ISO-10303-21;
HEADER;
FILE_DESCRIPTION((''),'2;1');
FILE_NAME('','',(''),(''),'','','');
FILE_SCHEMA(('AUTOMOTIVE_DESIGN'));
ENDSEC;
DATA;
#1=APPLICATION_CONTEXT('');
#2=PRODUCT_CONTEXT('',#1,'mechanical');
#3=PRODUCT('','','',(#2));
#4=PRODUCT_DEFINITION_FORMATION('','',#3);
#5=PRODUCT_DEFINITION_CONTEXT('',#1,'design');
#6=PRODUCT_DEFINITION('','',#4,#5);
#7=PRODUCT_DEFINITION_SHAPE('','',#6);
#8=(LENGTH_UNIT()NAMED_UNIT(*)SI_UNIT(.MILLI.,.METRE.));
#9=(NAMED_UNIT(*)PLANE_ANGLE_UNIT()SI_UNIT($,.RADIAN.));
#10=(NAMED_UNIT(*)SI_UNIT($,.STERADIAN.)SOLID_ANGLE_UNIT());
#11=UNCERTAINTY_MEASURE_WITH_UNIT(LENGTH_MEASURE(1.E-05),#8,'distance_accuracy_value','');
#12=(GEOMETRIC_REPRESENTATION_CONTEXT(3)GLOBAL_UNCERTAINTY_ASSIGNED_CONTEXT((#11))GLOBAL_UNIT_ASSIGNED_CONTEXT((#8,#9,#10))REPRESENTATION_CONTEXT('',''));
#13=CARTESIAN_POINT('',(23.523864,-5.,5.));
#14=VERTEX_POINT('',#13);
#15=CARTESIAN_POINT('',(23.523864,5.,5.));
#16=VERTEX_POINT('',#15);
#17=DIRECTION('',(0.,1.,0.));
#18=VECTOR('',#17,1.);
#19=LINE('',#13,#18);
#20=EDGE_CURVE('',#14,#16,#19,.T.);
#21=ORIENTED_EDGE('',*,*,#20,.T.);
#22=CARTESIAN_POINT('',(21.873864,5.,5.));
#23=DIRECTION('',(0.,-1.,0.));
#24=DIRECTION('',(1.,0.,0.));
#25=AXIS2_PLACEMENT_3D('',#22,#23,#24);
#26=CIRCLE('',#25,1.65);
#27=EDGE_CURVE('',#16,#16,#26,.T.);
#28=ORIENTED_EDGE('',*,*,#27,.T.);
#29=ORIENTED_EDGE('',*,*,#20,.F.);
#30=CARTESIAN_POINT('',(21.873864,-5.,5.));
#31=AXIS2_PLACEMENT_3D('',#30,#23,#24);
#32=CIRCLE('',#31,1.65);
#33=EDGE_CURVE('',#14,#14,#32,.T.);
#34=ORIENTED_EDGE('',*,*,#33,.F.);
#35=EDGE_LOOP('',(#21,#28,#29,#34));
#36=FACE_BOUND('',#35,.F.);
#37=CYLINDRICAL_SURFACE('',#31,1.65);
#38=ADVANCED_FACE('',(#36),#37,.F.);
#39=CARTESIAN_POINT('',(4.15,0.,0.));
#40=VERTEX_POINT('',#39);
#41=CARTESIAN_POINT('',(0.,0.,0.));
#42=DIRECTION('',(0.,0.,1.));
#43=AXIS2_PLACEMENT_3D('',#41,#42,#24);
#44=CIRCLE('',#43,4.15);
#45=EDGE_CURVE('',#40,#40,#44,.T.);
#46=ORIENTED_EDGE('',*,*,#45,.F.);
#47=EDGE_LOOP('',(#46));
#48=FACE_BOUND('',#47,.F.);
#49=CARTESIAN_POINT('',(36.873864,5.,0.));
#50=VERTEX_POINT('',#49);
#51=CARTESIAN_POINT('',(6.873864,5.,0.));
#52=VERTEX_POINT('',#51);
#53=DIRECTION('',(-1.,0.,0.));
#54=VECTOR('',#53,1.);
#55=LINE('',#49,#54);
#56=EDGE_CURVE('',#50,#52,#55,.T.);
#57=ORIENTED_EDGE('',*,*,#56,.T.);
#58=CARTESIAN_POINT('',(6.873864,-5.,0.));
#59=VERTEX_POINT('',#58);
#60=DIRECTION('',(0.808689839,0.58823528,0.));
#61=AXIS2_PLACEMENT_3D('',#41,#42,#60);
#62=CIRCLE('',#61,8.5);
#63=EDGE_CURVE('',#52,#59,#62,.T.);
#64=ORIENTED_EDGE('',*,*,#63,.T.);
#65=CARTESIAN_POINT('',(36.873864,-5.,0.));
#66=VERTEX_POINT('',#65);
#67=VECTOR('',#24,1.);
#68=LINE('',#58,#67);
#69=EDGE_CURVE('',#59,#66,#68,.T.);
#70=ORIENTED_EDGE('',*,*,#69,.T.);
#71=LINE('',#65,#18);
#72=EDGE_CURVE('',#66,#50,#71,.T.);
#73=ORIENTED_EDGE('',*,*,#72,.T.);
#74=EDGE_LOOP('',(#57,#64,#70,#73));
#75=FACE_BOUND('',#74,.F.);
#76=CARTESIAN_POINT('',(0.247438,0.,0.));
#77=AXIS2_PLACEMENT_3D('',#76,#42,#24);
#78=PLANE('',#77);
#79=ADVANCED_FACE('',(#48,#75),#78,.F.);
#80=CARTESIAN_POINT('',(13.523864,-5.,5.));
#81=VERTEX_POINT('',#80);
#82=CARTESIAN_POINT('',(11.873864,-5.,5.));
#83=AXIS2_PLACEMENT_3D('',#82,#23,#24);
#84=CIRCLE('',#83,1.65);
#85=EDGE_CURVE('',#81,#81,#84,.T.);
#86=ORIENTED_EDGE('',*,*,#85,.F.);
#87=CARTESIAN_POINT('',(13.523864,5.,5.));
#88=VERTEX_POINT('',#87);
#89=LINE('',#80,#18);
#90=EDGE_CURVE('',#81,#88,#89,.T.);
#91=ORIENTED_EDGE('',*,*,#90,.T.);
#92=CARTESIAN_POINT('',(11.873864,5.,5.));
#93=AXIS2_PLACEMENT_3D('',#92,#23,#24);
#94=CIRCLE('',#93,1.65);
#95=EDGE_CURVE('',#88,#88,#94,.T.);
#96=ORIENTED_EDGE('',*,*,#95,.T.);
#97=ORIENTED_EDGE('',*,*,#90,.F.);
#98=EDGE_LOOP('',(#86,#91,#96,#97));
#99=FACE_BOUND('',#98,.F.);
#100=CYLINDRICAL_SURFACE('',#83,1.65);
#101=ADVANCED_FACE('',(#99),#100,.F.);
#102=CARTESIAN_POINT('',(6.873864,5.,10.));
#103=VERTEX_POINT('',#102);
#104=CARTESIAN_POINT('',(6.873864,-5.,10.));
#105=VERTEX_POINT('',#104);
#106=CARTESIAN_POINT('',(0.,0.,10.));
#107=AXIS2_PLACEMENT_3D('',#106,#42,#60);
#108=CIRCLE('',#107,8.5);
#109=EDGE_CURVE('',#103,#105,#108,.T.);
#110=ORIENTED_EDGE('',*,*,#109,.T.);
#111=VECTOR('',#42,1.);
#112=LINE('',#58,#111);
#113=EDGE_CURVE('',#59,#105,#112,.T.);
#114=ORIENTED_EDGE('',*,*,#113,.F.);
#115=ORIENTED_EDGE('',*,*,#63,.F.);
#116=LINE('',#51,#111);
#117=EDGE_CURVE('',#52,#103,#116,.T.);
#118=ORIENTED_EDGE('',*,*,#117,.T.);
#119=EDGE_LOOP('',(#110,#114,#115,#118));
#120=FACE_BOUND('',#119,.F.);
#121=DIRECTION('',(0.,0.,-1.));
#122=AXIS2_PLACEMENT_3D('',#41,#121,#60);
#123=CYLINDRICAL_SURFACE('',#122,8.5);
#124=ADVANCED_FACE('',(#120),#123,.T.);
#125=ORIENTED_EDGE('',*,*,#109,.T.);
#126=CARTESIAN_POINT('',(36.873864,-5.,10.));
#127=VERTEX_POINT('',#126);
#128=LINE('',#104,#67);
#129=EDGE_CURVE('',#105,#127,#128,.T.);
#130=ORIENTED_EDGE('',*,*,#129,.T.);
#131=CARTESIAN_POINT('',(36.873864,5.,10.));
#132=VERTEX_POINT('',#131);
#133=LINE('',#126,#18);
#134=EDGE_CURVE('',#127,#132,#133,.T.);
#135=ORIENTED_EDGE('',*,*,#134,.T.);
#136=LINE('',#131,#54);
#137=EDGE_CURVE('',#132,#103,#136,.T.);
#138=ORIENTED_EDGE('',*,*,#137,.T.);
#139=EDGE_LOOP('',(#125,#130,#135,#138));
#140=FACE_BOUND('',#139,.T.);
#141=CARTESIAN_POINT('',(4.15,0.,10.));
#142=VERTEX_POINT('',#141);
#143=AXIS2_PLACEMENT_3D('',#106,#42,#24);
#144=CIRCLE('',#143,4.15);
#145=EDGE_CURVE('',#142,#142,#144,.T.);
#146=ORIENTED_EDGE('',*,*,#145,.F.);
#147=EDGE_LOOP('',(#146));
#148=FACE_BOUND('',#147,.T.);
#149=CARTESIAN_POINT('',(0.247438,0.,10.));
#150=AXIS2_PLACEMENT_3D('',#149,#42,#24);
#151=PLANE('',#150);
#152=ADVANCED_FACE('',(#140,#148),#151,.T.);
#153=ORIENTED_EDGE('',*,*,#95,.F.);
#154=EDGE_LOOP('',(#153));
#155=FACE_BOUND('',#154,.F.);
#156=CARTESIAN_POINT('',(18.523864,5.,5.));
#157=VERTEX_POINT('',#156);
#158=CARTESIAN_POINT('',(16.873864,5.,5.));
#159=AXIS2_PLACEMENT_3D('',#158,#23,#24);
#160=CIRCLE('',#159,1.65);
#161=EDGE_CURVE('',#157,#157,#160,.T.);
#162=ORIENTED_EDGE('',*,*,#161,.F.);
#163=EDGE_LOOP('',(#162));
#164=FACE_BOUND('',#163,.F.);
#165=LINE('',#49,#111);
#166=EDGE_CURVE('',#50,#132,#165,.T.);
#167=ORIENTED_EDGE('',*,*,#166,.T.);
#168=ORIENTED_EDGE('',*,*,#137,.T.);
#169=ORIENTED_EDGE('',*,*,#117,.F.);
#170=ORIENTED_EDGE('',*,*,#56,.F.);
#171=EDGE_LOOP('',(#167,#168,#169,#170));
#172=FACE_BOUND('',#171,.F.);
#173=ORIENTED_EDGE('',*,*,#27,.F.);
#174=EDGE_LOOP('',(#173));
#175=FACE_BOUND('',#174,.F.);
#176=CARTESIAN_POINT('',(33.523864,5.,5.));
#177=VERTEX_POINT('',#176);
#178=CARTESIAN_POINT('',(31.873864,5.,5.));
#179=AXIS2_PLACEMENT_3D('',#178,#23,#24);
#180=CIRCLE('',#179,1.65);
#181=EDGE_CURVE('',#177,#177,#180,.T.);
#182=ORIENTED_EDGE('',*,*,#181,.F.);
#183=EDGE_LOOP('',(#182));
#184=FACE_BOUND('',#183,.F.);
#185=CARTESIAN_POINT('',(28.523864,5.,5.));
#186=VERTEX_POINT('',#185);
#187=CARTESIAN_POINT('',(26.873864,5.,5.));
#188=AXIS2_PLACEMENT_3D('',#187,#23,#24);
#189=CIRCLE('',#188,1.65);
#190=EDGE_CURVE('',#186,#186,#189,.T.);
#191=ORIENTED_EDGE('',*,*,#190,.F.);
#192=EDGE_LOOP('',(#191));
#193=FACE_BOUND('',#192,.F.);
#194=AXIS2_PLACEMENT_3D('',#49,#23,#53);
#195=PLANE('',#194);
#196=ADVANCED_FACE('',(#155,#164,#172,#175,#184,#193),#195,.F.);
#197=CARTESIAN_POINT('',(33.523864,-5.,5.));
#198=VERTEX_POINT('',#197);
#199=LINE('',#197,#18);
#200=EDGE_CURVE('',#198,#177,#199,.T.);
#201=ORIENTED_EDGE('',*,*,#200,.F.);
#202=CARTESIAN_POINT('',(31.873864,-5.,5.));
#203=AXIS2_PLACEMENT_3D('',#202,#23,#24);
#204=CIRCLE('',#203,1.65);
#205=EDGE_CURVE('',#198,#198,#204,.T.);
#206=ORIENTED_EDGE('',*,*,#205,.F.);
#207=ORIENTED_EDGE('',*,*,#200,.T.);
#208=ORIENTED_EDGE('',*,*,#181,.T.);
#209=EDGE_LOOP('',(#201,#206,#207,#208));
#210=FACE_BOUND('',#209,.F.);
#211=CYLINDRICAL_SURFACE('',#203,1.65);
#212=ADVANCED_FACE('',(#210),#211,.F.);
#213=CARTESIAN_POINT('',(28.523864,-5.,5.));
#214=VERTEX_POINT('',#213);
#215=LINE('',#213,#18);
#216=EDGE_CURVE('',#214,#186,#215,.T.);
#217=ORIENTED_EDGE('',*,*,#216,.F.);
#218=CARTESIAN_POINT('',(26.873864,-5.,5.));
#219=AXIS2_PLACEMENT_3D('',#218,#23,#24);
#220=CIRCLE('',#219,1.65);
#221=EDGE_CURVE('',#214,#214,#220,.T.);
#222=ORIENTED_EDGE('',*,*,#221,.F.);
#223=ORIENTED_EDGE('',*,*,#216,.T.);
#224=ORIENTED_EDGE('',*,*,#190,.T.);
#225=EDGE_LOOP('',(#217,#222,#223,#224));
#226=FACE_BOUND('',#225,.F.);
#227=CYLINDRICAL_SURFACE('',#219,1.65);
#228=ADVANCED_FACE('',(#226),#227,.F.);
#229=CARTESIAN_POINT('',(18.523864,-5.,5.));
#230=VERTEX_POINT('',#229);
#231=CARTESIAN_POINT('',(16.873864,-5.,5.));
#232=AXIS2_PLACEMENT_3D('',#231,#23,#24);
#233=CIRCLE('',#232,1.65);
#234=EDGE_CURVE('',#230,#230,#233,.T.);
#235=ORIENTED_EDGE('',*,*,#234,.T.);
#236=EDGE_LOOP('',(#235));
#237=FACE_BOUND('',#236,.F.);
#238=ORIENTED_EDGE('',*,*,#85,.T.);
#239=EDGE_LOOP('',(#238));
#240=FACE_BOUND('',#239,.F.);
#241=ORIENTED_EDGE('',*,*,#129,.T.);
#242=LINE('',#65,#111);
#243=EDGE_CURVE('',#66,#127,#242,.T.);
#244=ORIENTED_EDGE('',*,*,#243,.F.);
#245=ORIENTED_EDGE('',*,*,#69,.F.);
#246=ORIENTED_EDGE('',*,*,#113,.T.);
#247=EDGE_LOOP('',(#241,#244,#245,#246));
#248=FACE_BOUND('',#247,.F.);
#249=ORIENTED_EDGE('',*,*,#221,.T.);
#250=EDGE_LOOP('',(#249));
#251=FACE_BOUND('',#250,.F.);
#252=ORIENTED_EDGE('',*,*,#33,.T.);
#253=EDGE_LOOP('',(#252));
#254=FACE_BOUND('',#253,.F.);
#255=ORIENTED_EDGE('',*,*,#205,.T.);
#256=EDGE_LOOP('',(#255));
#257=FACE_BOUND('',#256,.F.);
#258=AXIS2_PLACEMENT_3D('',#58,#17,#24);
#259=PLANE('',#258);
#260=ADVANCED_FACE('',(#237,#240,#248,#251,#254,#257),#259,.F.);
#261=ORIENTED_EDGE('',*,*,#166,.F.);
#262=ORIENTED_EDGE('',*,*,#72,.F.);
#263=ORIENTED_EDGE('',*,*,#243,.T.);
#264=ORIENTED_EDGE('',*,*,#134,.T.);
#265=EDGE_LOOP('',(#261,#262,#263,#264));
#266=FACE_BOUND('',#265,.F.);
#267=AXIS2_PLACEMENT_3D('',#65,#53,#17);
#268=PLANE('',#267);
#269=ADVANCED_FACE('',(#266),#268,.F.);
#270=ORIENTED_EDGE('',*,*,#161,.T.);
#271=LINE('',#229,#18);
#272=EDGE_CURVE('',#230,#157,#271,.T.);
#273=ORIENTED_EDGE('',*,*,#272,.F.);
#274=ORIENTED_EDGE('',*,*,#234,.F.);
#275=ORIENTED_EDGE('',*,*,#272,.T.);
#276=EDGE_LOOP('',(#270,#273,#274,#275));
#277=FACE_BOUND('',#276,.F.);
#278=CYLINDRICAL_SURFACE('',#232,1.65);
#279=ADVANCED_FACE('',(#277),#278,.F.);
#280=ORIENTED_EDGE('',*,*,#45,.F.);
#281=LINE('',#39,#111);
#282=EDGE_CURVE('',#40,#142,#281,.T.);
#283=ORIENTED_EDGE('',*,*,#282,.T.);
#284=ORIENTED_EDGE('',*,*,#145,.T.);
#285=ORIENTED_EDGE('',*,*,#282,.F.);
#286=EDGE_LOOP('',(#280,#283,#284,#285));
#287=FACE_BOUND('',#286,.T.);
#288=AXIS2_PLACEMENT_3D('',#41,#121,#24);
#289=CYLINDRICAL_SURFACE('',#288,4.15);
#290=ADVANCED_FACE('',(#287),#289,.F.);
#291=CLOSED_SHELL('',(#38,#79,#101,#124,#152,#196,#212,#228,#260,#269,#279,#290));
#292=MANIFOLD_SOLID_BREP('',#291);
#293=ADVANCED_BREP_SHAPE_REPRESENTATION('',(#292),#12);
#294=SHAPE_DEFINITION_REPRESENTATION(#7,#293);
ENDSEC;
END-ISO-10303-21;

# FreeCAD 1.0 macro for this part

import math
import FreeCAD as App
import Part
import Sketcher

V = App.Vector
Q = App.Units.Quantity

doc = App.newDocument("Part")
body = doc.addObject("PartDesign::Body", "Body")

sketch1 = body.newObject("Sketcher::SketchObject", "Sketch")
sketch1.AttachmentSupport = (doc.getObject("XY_Plane"), [""])
sketch1.MapMode = "FlatFace"
sketch1.addGeometry(Part.ArcOfCircle(Part.Circle(V(0, 0, 0), V(0, 0, 1), 8.5), math.radians(36), math.radians(324)), False)
sketch1.addGeometry(Part.LineSegment(V(6.9, -5, 0), V(36.9, -5, 0)), False)
sketch1.addGeometry(Part.LineSegment(V(36.9, -5, 0), V(36.9, 5, 0)), False)
sketch1.addGeometry(Part.LineSegment(V(36.9, 5, 0), V(6.9, 5, 0)), False)
sketch1.addGeometry(Part.Circle(V(0, 0, 0), V(0, 0, 1), 4.2), False)
sketch1.addConstraint(Sketcher.Constraint("Coincident", 0, 2, 1, 1))
sketch1.addConstraint(Sketcher.Constraint("Coincident", 1, 2, 2, 1))
sketch1.addConstraint(Sketcher.Constraint("Coincident", 2, 2, 3, 1))
sketch1.addConstraint(Sketcher.Constraint("Coincident", 3, 2, 0, 1))
sketch1.addConstraint(Sketcher.Constraint("Horizontal", 1))
sketch1.addConstraint(Sketcher.Constraint("Vertical", 2))
sketch1.addConstraint(Sketcher.Constraint("Horizontal", 3))
sketch1.addConstraint(Sketcher.Constraint("Coincident", 0, 3, -1, 1))
sketch1.addConstraint(Sketcher.Constraint("Coincident", 4, 3, -1, 1))
sketch1.addConstraint(Sketcher.Constraint("Vertical", 0, 2, 3, 2))
sketch1.addConstraint(Sketcher.Constraint("Diameter", 4, Q("8.3 mm")))
sketch1.addConstraint(Sketcher.Constraint("Radius", 0, Q("8.5 mm")))
sketch1.addConstraint(Sketcher.Constraint("DistanceX", 1, 1, 1, 2, Q("30 mm")))
sketch1.addConstraint(Sketcher.Constraint("DistanceY", 2, 1, 2, 2, Q("10 mm")))
pad1 = body.newObject("PartDesign::Pad", "Pad")
pad1.Profile = sketch1
pad1.Length = 10

sketch2 = body.newObject("Sketcher::SketchObject", "Sketch001")
sketch2.AttachmentSupport = (doc.getObject("XZ_Plane"), [""])
sketch2.MapMode = "FlatFace"
sketch2.AttachmentOffset = App.Placement(V(0, 0, 5), App.Rotation())
sketch2.addGeometry(Part.Circle(V(11.9, 5, 0), V(0, 0, 1), 1.6), False)
sketch2.addGeometry(Part.Circle(V(16.9, 5, 0), V(0, 0, 1), 1.6), False)
sketch2.addGeometry(Part.Circle(V(21.9, 5, 0), V(0, 0, 1), 1.6), False)
sketch2.addGeometry(Part.Circle(V(26.9, 5, 0), V(0, 0, 1), 1.6), False)
sketch2.addGeometry(Part.Circle(V(31.9, 5, 0), V(0, 0, 1), 1.6), False)
sketch2.addConstraint(Sketcher.Constraint("Equal", 0, 1))
sketch2.addConstraint(Sketcher.Constraint("Equal", 1, 2))
sketch2.addConstraint(Sketcher.Constraint("Equal", 2, 3))
sketch2.addConstraint(Sketcher.Constraint("Equal", 3, 4))
sketch2.addConstraint(Sketcher.Constraint("Horizontal", 0, 3, 1, 3))
sketch2.addConstraint(Sketcher.Constraint("Horizontal", 1, 3, 2, 3))
sketch2.addConstraint(Sketcher.Constraint("Horizontal", 2, 3, 3, 3))
sketch2.addConstraint(Sketcher.Constraint("Horizontal", 3, 3, 4, 3))
sketch2.addConstraint(Sketcher.Constraint("Diameter", 0, Q("3.3 mm")))
sketch2.addConstraint(Sketcher.Constraint("DistanceY", -1, 1, 0, 3, Q("5 mm")))
sketch2.addConstraint(Sketcher.Constraint("DistanceX", 0, 3, 1, 3, Q("5 mm")))
sketch2.addConstraint(Sketcher.Constraint("DistanceX", 1, 3, 2, 3, Q("5 mm")))
sketch2.addConstraint(Sketcher.Constraint("DistanceX", 2, 3, 3, 3, Q("5 mm")))
sketch2.addConstraint(Sketcher.Constraint("DistanceX", 3, 3, 4, 3, Q("5 mm")))
sketch2.addConstraint(Sketcher.Constraint("DistanceX", -1, 1, 0, 3, Q("11.873864 mm")))
pocket1 = body.newObject("PartDesign::Pocket", "Pocket")
pocket1.Profile = sketch2
pocket1.Length = 25

doc.recompute()
